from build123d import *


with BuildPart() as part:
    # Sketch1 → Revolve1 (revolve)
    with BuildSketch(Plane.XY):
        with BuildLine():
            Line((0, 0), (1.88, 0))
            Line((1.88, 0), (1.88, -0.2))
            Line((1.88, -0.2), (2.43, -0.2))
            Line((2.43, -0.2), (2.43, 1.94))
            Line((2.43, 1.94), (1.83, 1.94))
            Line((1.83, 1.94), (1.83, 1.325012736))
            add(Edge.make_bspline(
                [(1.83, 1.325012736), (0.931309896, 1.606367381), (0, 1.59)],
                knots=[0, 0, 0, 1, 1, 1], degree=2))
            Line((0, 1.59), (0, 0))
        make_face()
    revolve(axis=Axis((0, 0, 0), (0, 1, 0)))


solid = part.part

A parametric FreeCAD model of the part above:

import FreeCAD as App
import Part
import Sketcher
from FreeCAD import Vector
Q = App.Units.Quantity

doc = App.newDocument("Part")
params = doc.addObject("Spreadsheet::Sheet", "Params")
for row, (alias, value) in enumerate([
    ("sketch1_width", "0.6 mm"),
    ("sketch1_height", "0.2 mm"),
    ("sketch1_width2", "1.88 mm"),
    ("sketch1_height2", "2.14 mm"),
    ("revolution_angle", "360 deg"),
], start=1):
    params.set(f"A{row}", alias)
    params.set(f"B{row}", "=" + value)
    params.setAlias(f"B{row}", alias)

body = doc.addObject("PartDesign::Body", "Body")

# Sketch on XY plane
sketch1 = body.newObject("Sketcher::SketchObject", "Sketch")
sketch1.AttachmentSupport = (doc.getObject("XY_Plane"), [""])
sketch1.MapMode = "FlatFace"
sketch1.addGeometry(Part.LineSegment(Vector(0, 0, 0), Vector(1.88, 0, 0)), False)
sketch1.addGeometry(Part.LineSegment(Vector(1.88, 0, 0), Vector(1.88, -0.2, 0)), False)
sketch1.addGeometry(Part.LineSegment(Vector(1.88, -0.2, 0), Vector(2.43, -0.2, 0)), False)
sketch1.addGeometry(Part.LineSegment(Vector(2.43, -0.2, 0), Vector(2.43, 1.94, 0)), False)
sketch1.addGeometry(Part.LineSegment(Vector(2.43, 1.94, 0), Vector(1.83, 1.94, 0)), False)
sketch1.addGeometry(Part.LineSegment(Vector(1.83, 1.94, 0), Vector(1.83, 1.325013, 0)), False)
sketch1.addGeometry(Part.BSplineCurve([Vector(1.83, 1.325013, 0), Vector(0.93131, 1.606367, 0), Vector(0, 1.59, 0)], [3, 3], [0, 1], False, 2, [1, 1, 1], False), False)
sketch1.addGeometry(Part.LineSegment(Vector(0, 1.59, 0), Vector(0, 0, 0)), False)
sketch1.addConstraint(Sketcher.Constraint("Block", 6))
sketch1.addConstraint(Sketcher.Constraint("Coincident", 0, 2, 1, 1))
sketch1.addConstraint(Sketcher.Constraint("Coincident", 1, 2, 2, 1))
sketch1.addConstraint(Sketcher.Constraint("Coincident", 2, 2, 3, 1))
sketch1.addConstraint(Sketcher.Constraint("Coincident", 3, 2, 4, 1))
sketch1.addConstraint(Sketcher.Constraint("Coincident", 4, 2, 5, 1))
sketch1.addConstraint(Sketcher.Constraint("Coincident", 5, 2, 6, 1))
sketch1.addConstraint(Sketcher.Constraint("Coincident", 6, 2, 7, 1))
sketch1.addConstraint(Sketcher.Constraint("Coincident", 7, 2, 0, 1))
sketch1.addConstraint(Sketcher.Constraint("Horizontal", 0))
sketch1.addConstraint(Sketcher.Constraint("Vertical", 1))
sketch1.addConstraint(Sketcher.Constraint("Horizontal", 2))
sketch1.addConstraint(Sketcher.Constraint("Vertical", 3))
sketch1.addConstraint(Sketcher.Constraint("Horizontal", 4))
sketch1.addConstraint(Sketcher.Constraint("Vertical", 5))
sketch1.addConstraint(Sketcher.Constraint("Vertical", 7))
sketch1.addConstraint(Sketcher.Constraint("PointOnObject", 0, 2, -1))
sketch1.addConstraint(Sketcher.Constraint("DistanceX", 4, 2, 4, 1, Q("0.6 mm")))
sketch1.addConstraint(Sketcher.Constraint("DistanceY", 1, 2, 1, 1, Q("0.2 mm")))
sketch1.addConstraint(Sketcher.Constraint("DistanceX", 0, 1, 0, 2, Q("1.88 mm")))
sketch1.addConstraint(Sketcher.Constraint("DistanceY", 3, 1, 3, 2, Q("2.14 mm")))
sketch1.setExpression("Constraints[17]", "Params.sketch1_width")
sketch1.setExpression("Constraints[18]", "Params.sketch1_height")
sketch1.setExpression("Constraints[19]", "Params.sketch1_width2")
sketch1.setExpression("Constraints[20]", "Params.sketch1_height2")
revolution = body.newObject("PartDesign::Revolution", "Revolution")
revolution.Profile = sketch1
revolution.ReferenceAxis = (sketch1, ["V_Axis"])
revolution.setExpression("Angle", "Params.revolution_angle")

doc.recompute()
